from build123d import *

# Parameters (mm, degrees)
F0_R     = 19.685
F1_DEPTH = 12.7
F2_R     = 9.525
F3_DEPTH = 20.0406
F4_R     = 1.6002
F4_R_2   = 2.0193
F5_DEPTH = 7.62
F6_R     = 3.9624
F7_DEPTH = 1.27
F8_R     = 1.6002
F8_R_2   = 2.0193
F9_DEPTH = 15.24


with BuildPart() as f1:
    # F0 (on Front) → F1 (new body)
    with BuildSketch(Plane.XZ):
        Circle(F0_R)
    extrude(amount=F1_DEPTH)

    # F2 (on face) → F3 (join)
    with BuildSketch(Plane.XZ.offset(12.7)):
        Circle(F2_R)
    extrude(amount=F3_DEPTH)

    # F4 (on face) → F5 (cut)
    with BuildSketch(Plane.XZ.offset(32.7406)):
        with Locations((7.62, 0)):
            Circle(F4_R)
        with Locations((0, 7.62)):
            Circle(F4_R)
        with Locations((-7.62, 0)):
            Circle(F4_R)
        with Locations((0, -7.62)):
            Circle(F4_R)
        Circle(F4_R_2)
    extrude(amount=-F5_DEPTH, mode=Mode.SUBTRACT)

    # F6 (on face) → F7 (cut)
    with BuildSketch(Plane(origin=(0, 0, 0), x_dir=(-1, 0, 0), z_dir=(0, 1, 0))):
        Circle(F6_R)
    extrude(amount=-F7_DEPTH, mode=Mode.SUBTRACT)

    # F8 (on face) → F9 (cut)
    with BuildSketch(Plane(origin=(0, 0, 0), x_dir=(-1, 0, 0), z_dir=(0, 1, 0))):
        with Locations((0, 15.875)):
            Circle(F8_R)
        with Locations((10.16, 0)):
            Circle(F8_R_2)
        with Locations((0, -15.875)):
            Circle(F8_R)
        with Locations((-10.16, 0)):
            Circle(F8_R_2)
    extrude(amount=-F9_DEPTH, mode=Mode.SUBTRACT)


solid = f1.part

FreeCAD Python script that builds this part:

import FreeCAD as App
import Part
import Sketcher
from FreeCAD import Vector
Q = App.Units.Quantity

doc = App.newDocument("Part")
body = doc.addObject("PartDesign::Body", "Body")

sketch1 = body.newObject("Sketcher::SketchObject", "Sketch")
sketch1.AttachmentSupport = (doc.getObject("XZ_Plane"), [""])
sketch1.MapMode = "FlatFace"
sketch1.addGeometry(Part.Circle(Vector(0, 0, 0), Vector(0, 0, 1), 20), False)
sketch1.addConstraint([
    Sketcher.Constraint("Coincident", 0, 3, -1, 1),
    Sketcher.Constraint("Diameter", 0, Q("1.55 in")),
])
pad1 = body.newObject("PartDesign::Pad", "Pad")
pad1.Profile = sketch1
pad1.Length = Q("0.5 in")

sketch2 = body.newObject("Sketcher::SketchObject", "Sketch001")
sketch2.AttachmentSupport = (doc.getObject("XZ_Plane"), [""])
sketch2.MapMode = "FlatFace"
sketch2.AttachmentOffset = App.Placement(Vector(0, 0, 0.5 * 25.4), App.Rotation())
sketch2.addGeometry(Part.Circle(Vector(0, 0, 0), Vector(0, 0, 1), 10), False)
sketch2.addConstraint([
    Sketcher.Constraint("Coincident", 0, 3, -1, 1),
    Sketcher.Constraint("Diameter", 0, Q("0.75 in")),
])
pad2 = body.newObject("PartDesign::Pad", "Pad001")
pad2.Profile = sketch2
pad2.Length = Q("0.789 in")

sketch3 = body.newObject("Sketcher::SketchObject", "Sketch002")
sketch3.AttachmentSupport = (doc.getObject("XZ_Plane"), [""])
sketch3.MapMode = "FlatFace"
sketch3.AttachmentOffset = App.Placement(Vector(0, 0, 1.289 * 25.4), App.Rotation())
sketch3.addGeometry([
    Part.Circle(Vector(7.6, 0, 0), Vector(0, 0, 1), 1.6),
    Part.Circle(Vector(0, 7.6, 0), Vector(0, 0, 1), 1.6),
    Part.Circle(Vector(-7.6, 0, 0), Vector(0, 0, 1), 1.6),
    Part.Circle(Vector(0, -7.6, 0), Vector(0, 0, 1), 1.6),
    Part.Circle(Vector(0, 0, 0), Vector(0, 0, 1), 2),
], False)
sketch3.addConstraint([
    Sketcher.Constraint("Coincident", 4, 3, -1, 1),
    Sketcher.Constraint("Equal", 0, 1),
    Sketcher.Constraint("Equal", 1, 2),
    Sketcher.Constraint("Equal", 2, 3),
    Sketcher.Constraint("Symmetric", 0, 3, 2, 3, -1, 1),
    Sketcher.Constraint("Symmetric", 1, 3, 3, 3, -1, 1),
    Sketcher.Constraint("PointOnObject", 0, 3, -1),
    Sketcher.Constraint("PointOnObject", 1, 3, -2),
    Sketcher.Constraint("Diameter", 0, Q("0.126 in")),
    Sketcher.Constraint("Diameter", 4, Q("0.159 in")),
    Sketcher.Constraint("DistanceX", -1, 1, 0, 3, Q("0.3 in")),
    Sketcher.Constraint("DistanceY", -1, 1, 1, 3, Q("0.3 in")),
])
pocket1 = body.newObject("PartDesign::Pocket", "Pocket")
pocket1.Profile = sketch3
pocket1.Length = Q("0.3 in")

sketch4 = body.newObject("Sketcher::SketchObject", "Sketch003")
sketch4.AttachmentSupport = (doc.getObject("XZ_Plane"), [""])
sketch4.MapMode = "FlatFace"
sketch4.addGeometry(Part.Circle(Vector(0, 0, 0), Vector(0, 0, 1), 4), False)
sketch4.addConstraint([
    Sketcher.Constraint("Coincident", 0, 3, -1, 1),
    Sketcher.Constraint("Diameter", 0, Q("0.312 in")),
])
pocket2 = body.newObject("PartDesign::Pocket", "Pocket001")
pocket2.Profile = sketch4
pocket2.Length = Q("0.05 in")
pocket2.Reversed = True

sketch5 = body.newObject("Sketcher::SketchObject", "Sketch004")
sketch5.AttachmentSupport = (doc.getObject("XZ_Plane"), [""])
sketch5.MapMode = "FlatFace"
sketch5.addGeometry([
    Part.Circle(Vector(0, 15.9, 0), Vector(0, 0, 1), 1.6),
    Part.Circle(Vector(-10.2, 0, 0), Vector(0, 0, 1), 2),
    Part.Circle(Vector(0, -15.9, 0), Vector(0, 0, 1), 1.6),
    Part.Circle(Vector(10.2, 0, 0), Vector(0, 0, 1), 2),
], False)
sketch5.addConstraint([
    Sketcher.Constraint("Equal", 0, 2),
    Sketcher.Constraint("Equal", 1, 3),
    Sketcher.Constraint("Symmetric", 0, 3, 2, 3, -1, 1),
    Sketcher.Constraint("Symmetric", 1, 3, 3, 3, -1, 1),
    Sketcher.Constraint("PointOnObject", 0, 3, -2),
    Sketcher.Constraint("PointOnObject", 1, 3, -1),
    Sketcher.Constraint("Diameter", 0, Q("0.126 in")),
    Sketcher.Constraint("Diameter", 1, Q("0.159 in")),
    Sketcher.Constraint("DistanceX", 1, 3, -1, 1, Q("0.4 in")),
    Sketcher.Constraint("DistanceY", 2, 3, 0, 3, Q("1.25 in")),
])
pocket3 = body.newObject("PartDesign::Pocket", "Pocket002")
pocket3.Profile = sketch5
pocket3.Length = Q("0.6 in")
pocket3.Reversed = True

doc.recompute()
